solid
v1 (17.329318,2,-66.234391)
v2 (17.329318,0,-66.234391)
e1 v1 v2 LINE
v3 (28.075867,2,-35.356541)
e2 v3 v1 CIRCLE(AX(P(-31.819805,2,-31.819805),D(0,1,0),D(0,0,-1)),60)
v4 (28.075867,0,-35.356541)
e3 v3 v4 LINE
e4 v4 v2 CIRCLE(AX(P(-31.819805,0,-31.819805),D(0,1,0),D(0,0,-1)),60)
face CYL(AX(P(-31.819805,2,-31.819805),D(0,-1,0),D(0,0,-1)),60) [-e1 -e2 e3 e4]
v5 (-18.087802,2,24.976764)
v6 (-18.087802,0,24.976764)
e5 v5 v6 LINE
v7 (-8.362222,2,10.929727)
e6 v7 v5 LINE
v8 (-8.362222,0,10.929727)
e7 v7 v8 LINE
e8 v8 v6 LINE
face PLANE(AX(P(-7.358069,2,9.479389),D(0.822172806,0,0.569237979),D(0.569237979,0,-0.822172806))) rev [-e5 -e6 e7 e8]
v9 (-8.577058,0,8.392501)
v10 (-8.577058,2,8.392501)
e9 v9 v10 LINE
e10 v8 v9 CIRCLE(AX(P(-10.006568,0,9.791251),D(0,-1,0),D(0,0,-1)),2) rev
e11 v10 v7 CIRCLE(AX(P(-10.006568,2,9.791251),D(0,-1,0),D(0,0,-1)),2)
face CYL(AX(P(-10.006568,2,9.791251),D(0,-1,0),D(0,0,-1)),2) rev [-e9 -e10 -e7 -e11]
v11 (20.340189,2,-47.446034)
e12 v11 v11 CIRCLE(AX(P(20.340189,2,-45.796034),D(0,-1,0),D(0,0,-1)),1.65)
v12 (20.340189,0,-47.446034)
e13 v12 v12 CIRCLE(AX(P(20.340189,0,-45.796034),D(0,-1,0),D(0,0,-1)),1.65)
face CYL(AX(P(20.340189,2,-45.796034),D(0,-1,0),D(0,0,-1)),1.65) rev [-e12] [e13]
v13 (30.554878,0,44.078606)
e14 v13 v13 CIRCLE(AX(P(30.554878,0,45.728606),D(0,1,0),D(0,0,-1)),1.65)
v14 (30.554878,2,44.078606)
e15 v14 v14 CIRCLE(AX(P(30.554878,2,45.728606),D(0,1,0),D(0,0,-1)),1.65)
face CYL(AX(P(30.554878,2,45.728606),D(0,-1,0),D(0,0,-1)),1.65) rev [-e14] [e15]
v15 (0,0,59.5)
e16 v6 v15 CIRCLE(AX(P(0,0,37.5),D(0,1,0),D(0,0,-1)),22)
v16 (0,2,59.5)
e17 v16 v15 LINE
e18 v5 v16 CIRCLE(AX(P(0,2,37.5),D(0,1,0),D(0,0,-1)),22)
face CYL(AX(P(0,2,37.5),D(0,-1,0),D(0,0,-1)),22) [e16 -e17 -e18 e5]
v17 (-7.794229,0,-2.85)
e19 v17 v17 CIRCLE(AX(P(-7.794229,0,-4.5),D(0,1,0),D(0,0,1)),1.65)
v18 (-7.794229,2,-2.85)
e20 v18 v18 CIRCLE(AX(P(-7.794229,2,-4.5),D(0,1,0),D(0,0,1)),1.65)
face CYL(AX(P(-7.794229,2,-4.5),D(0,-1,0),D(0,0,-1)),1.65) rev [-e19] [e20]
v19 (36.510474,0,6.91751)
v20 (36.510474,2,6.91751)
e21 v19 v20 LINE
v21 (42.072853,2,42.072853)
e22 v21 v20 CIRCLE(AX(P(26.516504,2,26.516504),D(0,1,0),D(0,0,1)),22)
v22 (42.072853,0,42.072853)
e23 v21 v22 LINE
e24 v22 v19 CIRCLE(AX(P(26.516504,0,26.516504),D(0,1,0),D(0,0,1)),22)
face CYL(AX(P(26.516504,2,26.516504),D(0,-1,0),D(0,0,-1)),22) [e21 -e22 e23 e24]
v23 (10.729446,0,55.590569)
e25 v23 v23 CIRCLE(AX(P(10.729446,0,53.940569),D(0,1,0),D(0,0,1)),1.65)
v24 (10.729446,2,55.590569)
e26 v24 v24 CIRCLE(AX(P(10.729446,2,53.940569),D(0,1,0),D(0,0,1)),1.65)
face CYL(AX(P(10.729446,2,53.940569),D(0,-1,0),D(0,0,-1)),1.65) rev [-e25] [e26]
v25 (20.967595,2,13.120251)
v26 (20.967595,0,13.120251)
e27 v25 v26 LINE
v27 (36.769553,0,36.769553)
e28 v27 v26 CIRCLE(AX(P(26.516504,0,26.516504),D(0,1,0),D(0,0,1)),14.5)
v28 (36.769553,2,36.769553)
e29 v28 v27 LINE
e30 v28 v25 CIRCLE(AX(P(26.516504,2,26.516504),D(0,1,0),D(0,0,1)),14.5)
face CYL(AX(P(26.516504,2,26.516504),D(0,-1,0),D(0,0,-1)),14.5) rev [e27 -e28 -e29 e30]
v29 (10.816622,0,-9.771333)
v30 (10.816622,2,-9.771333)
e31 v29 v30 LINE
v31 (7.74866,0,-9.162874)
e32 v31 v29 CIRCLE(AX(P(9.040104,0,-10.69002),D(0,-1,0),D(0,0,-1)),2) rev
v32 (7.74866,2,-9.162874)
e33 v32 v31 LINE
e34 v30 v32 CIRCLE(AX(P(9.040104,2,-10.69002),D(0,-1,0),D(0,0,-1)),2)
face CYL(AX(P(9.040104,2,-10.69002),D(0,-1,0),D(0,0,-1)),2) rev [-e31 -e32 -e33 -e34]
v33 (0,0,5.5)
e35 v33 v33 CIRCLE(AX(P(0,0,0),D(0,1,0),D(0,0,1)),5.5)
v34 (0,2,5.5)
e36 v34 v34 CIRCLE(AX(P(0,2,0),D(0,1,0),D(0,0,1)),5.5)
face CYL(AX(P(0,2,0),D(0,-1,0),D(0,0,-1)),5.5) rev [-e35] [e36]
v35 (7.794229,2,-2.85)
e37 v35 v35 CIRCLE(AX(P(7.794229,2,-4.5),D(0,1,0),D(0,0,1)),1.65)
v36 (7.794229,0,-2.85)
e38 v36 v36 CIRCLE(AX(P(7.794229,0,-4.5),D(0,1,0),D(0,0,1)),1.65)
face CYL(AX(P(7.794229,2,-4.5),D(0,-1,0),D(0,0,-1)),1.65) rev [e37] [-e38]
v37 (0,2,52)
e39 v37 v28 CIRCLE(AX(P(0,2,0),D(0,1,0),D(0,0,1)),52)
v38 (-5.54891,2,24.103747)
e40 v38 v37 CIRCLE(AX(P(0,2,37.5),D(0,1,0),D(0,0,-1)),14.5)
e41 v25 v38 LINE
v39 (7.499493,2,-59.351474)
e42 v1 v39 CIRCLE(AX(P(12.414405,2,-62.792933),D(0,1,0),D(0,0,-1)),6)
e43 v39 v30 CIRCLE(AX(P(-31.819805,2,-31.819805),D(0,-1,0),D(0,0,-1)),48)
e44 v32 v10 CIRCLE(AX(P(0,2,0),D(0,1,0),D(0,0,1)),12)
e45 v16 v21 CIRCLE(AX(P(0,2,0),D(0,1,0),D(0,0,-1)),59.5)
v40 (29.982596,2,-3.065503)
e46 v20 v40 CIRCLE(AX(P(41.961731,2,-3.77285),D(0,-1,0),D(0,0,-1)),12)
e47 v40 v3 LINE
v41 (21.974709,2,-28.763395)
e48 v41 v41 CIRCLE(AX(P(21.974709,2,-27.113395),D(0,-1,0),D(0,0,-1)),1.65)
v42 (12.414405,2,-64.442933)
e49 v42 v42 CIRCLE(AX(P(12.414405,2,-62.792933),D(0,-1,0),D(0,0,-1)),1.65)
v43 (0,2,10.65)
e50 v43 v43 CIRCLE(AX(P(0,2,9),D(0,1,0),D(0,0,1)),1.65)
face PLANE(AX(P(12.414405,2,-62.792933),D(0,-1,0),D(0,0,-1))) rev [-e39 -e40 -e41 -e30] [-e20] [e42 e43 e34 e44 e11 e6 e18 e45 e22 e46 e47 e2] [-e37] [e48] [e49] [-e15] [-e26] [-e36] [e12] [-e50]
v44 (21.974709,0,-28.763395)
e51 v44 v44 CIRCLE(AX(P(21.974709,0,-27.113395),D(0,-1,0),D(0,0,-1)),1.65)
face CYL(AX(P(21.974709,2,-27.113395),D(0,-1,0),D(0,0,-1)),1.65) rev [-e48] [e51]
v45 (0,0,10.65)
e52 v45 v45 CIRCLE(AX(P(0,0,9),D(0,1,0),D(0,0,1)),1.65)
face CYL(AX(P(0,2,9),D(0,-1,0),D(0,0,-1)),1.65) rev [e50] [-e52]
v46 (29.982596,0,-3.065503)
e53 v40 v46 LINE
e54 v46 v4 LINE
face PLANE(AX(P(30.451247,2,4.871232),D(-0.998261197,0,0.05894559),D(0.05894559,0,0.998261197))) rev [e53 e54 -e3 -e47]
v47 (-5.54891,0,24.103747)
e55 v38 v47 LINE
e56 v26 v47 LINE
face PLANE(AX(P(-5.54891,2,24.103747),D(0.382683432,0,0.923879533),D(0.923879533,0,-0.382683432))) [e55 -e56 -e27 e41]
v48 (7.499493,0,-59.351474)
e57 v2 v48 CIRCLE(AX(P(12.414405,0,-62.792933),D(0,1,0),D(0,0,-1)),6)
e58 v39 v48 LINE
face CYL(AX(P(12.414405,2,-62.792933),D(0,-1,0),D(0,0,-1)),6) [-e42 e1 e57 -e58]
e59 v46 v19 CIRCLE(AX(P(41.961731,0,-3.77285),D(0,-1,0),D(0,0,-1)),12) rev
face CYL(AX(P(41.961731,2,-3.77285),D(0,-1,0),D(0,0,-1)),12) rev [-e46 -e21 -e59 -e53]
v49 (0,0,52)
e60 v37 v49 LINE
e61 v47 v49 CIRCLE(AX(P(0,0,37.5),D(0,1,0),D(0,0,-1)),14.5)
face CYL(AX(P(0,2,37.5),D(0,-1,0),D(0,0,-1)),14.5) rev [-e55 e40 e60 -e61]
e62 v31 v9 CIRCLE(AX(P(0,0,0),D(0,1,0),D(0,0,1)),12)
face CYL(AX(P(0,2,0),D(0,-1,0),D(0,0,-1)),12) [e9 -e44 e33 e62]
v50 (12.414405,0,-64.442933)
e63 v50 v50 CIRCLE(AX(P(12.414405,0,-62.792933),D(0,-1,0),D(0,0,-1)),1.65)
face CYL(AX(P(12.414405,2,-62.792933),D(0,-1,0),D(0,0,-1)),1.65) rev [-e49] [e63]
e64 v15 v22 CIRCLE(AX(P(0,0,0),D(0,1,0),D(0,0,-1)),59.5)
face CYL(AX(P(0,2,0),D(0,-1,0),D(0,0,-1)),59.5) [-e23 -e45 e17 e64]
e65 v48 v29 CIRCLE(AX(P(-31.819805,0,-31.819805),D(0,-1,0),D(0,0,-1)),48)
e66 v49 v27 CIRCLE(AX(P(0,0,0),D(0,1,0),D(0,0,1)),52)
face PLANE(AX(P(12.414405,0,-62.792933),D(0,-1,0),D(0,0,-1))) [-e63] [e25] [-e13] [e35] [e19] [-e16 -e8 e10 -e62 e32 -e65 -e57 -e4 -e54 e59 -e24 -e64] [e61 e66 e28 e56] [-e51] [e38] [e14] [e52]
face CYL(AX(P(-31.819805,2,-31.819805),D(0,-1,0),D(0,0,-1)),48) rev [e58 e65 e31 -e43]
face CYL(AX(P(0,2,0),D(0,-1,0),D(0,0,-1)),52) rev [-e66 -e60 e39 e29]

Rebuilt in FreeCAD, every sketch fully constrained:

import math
import FreeCAD as App
import Part
import Sketcher

V = App.Vector
Q = App.Units.Quantity


def edges_at(feature, points):
    """Names of the edges that pass closest to the given points."""
    edges = feature.Shape.Edges
    near = lambda p: min(range(len(edges)), key=lambda i: edges[i].distToShape(Part.Vertex(*p))[0])
    return sorted({f"Edge{near(p) + 1}" for p in points})

doc = App.newDocument("Part")
body = doc.addObject("PartDesign::Body", "Body")

sketch1 = body.newObject("Sketcher::SketchObject", "Sketch")
sketch1.AttachmentSupport = (doc.getObject("XZ_Plane"), [""])
sketch1.MapMode = "FlatFace"
sketch1.addGeometry([
    Part.LineSegment(V(-7.358069, 9.479389, 0), V(-18.087802, 24.976764, 0)),
    Part.ArcOfCircle(Part.Circle(V(0, 37.5, 0), V(0, 0, 1), 22), math.radians(90), math.radians(214.697105)),
    Part.ArcOfCircle(Part.Circle(V(0, 0, 0), V(0, 0, 1), 59.5), math.radians(45), math.radians(90)),
    Part.ArcOfCircle(Part.Circle(V(26.516504, 26.516504, 0), V(0, 0, 1), 22), math.radians(-79.697105), math.radians(45)),
    Part.LineSegment(V(30.451247, 4.871232, 0), V(28.075867, -35.356541, 0)),
    Part.ArcOfCircle(Part.Circle(V(-31.819805, -31.819805, 0), V(0, 0, 1), 60), math.radians(-35), math.radians(-3.379292)),
    Part.ArcOfCircle(Part.Circle(V(12.414405, -62.792933, 0), V(0, 0, 1), 6), math.radians(145), math.radians(325)),
    Part.ArcOfCircle(Part.Circle(V(-31.819805, -31.819805, 0), V(0, 0, 1), 48), math.radians(-35), math.radians(30.638488)),
    Part.ArcOfCircle(Part.Circle(V(0, 0, 0), V(0, 0, 1), 12), math.radians(127.819244), math.radians(322.180756)),
    Part.Circle(V(10.729446, 53.940569, 0), V(0, 0, 1), 1.65),
    Part.Circle(V(30.554878, 45.728606, 0), V(0, 0, 1), 1.65),
    Part.ArcOfCircle(Part.Circle(V(0, 37.5, 0), V(0, 0, 1), 14.5), math.radians(90), math.radians(247.5)),
    Part.LineSegment(V(-5.54891, 24.103747, 0), V(20.967595, 13.120251, 0)),
    Part.ArcOfCircle(Part.Circle(V(26.516504, 26.516504, 0), V(0, 0, 1), 14.5), math.radians(-112.5), math.radians(45)),
    Part.ArcOfCircle(Part.Circle(V(0, 0, 0), V(0, 0, 1), 52), math.radians(45), math.radians(90)),
    Part.Circle(V(-7.794229, -4.5, 0), V(0, 0, 1), 1.65),
    Part.Circle(V(0, 9, 0), V(0, 0, 1), 1.65),
    Part.Circle(V(0, 0, 0), V(0, 0, 1), 5.5),
    Part.Circle(V(7.794229, -4.5, 0), V(0, 0, 1), 1.65),
], False)
sketch1.addConstraint([
    Sketcher.Constraint("Tangent", 0, 2, 1, 2),
    Sketcher.Constraint("Tangent", 1, 1, 2, 2),
    Sketcher.Constraint("Tangent", 2, 1, 3, 2),
    Sketcher.Constraint("Coincident", 3, 1, 4, 1),
    Sketcher.Constraint("Tangent", 4, 2, 5, 2),
    Sketcher.Constraint("Tangent", 5, 1, 6, 2),
    Sketcher.Constraint("Tangent", 6, 1, 7, 1),
    Sketcher.Constraint("Coincident", 7, 2, 8, 2),
    Sketcher.Constraint("Coincident", 8, 1, 0, 1),
    Sketcher.Constraint("Tangent", 11, 2, 12, 1),
    Sketcher.Constraint("Tangent", 12, 2, 13, 1),
    Sketcher.Constraint("Tangent", 13, 2, 14, 1),
    Sketcher.Constraint("Tangent", 14, 2, 11, 1),
    Sketcher.Constraint("Coincident", 2, 3, -1, 1),
    Sketcher.Constraint("Coincident", 8, 3, -1, 1),
    Sketcher.Constraint("Coincident", 14, 3, -1, 1),
    Sketcher.Constraint("Coincident", 17, 3, -1, 1),
    Sketcher.Constraint("Coincident", 7, 3, 5, 3),
    Sketcher.Constraint("Coincident", 11, 3, 1, 3),
    Sketcher.Constraint("Coincident", 13, 3, 3, 3),
    Sketcher.Constraint("Equal", 1, 3),
    Sketcher.Constraint("Equal", 9, 10),
    Sketcher.Constraint("Equal", 10, 15),
    Sketcher.Constraint("Equal", 15, 16),
    Sketcher.Constraint("Equal", 16, 18),
    Sketcher.Constraint("Symmetric", 15, 3, 18, 3, -2),
    Sketcher.Constraint("PointOnObject", 1, 3, -2),
    Sketcher.Constraint("PointOnObject", 16, 3, -2),
    Sketcher.Constraint("Diameter", 17, 11.0),
    Sketcher.Constraint("Radius", 1, 22.0),
    Sketcher.Constraint("Radius", 5, 60.0),
    Sketcher.Constraint("Radius", 6, 6.0),
    Sketcher.Constraint("Radius", 8, 12.0),
    Sketcher.Constraint("Radius", 14, 52.0),
    Sketcher.Constraint("Diameter", 9, 3.3),
    Sketcher.Constraint("Radius", 2, 59.5),
    Sketcher.Constraint("DistanceY", -1, 1, 16, 3, 9.0),
    Sketcher.Constraint("Angle", 12, Q("-22.5 deg")),
    Sketcher.Constraint("DistanceY", 15, 3, -1, 1, 4.5),
    Sketcher.Constraint("DistanceX", 0, 2, -1, 1, 18.087802),
    Sketcher.Constraint("DistanceX", 6, 3, 3, 3, 14.102099),
    Sketcher.Constraint("DistanceX", 5, 3, 6, 1, 39.319298),
    Sketcher.Constraint("DistanceY", -1, 1, 9, 3, 53.940569),
    Sketcher.Constraint("DistanceX", 15, 3, -1, 1, 7.794229),
    Sketcher.Constraint("DistanceY", 4, 2, -1, 1, 35.356541),
    Sketcher.Constraint("DistanceY", 5, 1, -1, 1, 66.234391),
    Sketcher.Constraint("DistanceX", 5, 3, 9, 3, 42.549251),
    Sketcher.Constraint("DistanceX", 9, 3, 10, 3, 19.825432),
    Sketcher.Constraint("DistanceY", -1, 1, 10, 3, 45.728606),
])
pad1 = body.newObject("PartDesign::Pad", "Pad")
pad1.Profile = sketch1
pad1.Length = 2
pad1.Reversed = True

sketch2 = body.newObject("Sketcher::SketchObject", "Sketch001")
sketch2.AttachmentSupport = (doc.getObject("XZ_Plane"), [""])
sketch2.MapMode = "FlatFace"
sketch2.addGeometry([
    Part.Circle(V(21.974709, -27.113395, 0), V(0, 0, 1), 1.65),
    Part.Circle(V(12.414405, -62.792933, 0), V(0, 0, 1), 1.65),
    Part.Circle(V(20.340189, -45.796034, 0), V(0, 0, 1), 1.65),
], False)
sketch2.addConstraint([
    Sketcher.Constraint("Equal", 0, 1),
    Sketcher.Constraint("Equal", 1, 2),
    Sketcher.Constraint("Diameter", 0, 3.3),
    Sketcher.Constraint("DistanceY", 1, 3, 2, 3, 16.996899),
    Sketcher.Constraint("DistanceX", -1, 1, 0, 3, 21.974709),
    Sketcher.Constraint("DistanceX", -1, 1, 2, 3, 20.340189),
    Sketcher.Constraint("DistanceY", 2, 3, 0, 3, 18.682639),
    Sketcher.Constraint("DistanceY", 0, 3, -1, 1, 27.113395),
    Sketcher.Constraint("DistanceX", -1, 1, 1, 3, 12.414405),
])
pocket1 = body.newObject("PartDesign::Pocket", "Pocket")
pocket1.Profile = sketch2
pocket1.Type = "ThroughAll"
doc.recompute()

fillet = body.newObject("PartDesign::Fillet", "Fillet")
fillet.Base = (pocket1, edges_at(pocket1, [(-7.358, 1, 9.479), (9.479, 1, -7.358)]))
fillet.Radius = 2
doc.recompute()

fillet2 = body.newObject("PartDesign::Fillet", "Fillet001")
fillet2.Base = (fillet, edges_at(fillet, [(30.451, 1, 4.871)]))
fillet2.Radius = 12

doc.recompute()
